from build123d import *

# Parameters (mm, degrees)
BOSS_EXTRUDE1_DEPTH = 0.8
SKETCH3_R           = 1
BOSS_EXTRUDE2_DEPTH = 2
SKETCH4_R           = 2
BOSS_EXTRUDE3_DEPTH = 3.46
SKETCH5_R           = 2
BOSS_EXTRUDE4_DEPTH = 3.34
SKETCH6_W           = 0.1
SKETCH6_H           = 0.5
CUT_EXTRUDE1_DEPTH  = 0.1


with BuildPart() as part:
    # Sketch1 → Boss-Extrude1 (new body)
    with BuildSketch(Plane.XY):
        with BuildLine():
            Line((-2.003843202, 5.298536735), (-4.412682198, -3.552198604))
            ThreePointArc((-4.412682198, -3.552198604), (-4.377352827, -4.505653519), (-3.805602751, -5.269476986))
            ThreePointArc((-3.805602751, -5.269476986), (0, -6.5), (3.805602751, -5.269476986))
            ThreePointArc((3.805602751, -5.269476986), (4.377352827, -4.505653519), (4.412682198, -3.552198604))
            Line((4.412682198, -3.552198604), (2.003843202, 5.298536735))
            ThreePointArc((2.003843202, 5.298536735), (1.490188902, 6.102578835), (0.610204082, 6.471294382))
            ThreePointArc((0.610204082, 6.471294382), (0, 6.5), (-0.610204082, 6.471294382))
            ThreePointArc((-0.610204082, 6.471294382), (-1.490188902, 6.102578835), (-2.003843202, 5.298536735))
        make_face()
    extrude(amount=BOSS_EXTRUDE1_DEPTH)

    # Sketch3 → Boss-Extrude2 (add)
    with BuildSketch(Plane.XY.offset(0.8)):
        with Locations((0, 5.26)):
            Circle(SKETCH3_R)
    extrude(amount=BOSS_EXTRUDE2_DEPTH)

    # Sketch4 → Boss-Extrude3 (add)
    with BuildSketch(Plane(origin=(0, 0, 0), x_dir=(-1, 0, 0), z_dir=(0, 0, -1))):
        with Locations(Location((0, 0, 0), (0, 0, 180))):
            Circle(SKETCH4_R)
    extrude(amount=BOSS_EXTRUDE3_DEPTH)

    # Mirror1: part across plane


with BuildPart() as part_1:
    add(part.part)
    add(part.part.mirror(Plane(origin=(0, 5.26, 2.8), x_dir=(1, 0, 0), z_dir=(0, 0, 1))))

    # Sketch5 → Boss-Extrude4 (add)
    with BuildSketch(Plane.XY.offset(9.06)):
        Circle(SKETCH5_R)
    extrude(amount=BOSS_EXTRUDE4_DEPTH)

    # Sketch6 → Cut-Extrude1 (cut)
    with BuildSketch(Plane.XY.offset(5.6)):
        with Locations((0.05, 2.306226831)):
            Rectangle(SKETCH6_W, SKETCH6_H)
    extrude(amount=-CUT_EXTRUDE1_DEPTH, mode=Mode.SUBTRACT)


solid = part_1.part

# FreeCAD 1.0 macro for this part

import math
import FreeCAD as App
import Part
import Sketcher
from FreeCAD import Vector


def add_polygon(sketch, points):
    """Adds a closed chain of lines whose ends are joined by coincident constraints."""
    first, n = sketch.GeometryCount, len(points)
    for a, b in zip(points, points[1:] + points[:1]):
        sketch.addGeometry(Part.LineSegment(App.Vector(*a, 0), App.Vector(*b, 0)), False)
    for i in range(n):
        sketch.addConstraint(Sketcher.Constraint("Coincident", first + i, 2, first + (i + 1) % n, 1))

doc = App.newDocument("Part")
params = doc.addObject("Spreadsheet::Sheet", "Params")
for row, (alias, value) in enumerate([
    ("sketch1_radius", "1.6 mm"),
    ("sketch1_radius2", "6.5 mm"),
    ("pad1_length", "0.8 mm"),
    ("sketch2_diameter", "2 mm"),
    ("pad2_length", "2 mm"),
    ("sketch3_diameter", "4 mm"),
    ("pad3_length", "3.46 mm"),
    ("sketch4_diameter", "4 mm"),
    ("pad4_length", "3.34 mm"),
    ("sketch5_width", "0.1 mm"),
    ("sketch5_height", "0.5 mm"),
    ("pocket1_length", "0.1 mm"),
], start=1):
    params.set(f"A{row}", alias)
    params.set(f"B{row}", "=" + value)
    params.setAlias(f"B{row}", alias)

body = doc.addObject("PartDesign::Body", "Body")

# Sketch on XY plane
sketch1 = body.newObject("Sketcher::SketchObject", "Sketch")
sketch1.AttachmentSupport = (doc.getObject("XY_Plane"), [""])
sketch1.MapMode = "FlatFace"
sketch1.addGeometry([
    Part.LineSegment(Vector(-2, 5.3, 0), Vector(-4.4, -3.6, 0)),  # 0
    Part.ArcOfCircle(Part.Circle(Vector(-2.9, -4, 0), Vector(0, 0, 1), 1.6), math.radians(165), math.radians(234)),  # 1
    Part.ArcOfCircle(Part.Circle(Vector(0, 0, 0), Vector(0, 0, 1), 6.5), math.radians(-126), math.radians(-54)),  # 2
    Part.ArcOfCircle(Part.Circle(Vector(2.9, -4, 0), Vector(0, 0, 1), 1.6), math.radians(-54), math.radians(15)),  # 3
    Part.LineSegment(Vector(4.4, -3.6, 0), Vector(2, 5.3, 0)),  # 4
    Part.ArcOfCircle(Part.Circle(Vector(0.5, 4.9, 0), Vector(0, 0, 1), 1.6), math.radians(15), math.radians(85)),  # 5
    Part.ArcOfCircle(Part.Circle(Vector(0, 0, 0), Vector(0, 0, 1), 6.5), math.radians(84.61), math.radians(95.39)),  # 6
    Part.ArcOfCircle(Part.Circle(Vector(-0.5, 4.9, 0), Vector(0, 0, 1), 1.6), math.radians(95), math.radians(165)),  # 7
], False)
sketch1.addConstraint([
    Sketcher.Constraint("Tangent", 0, 2, 1, 1),
    Sketcher.Constraint("Tangent", 1, 2, 2, 1),
    Sketcher.Constraint("Tangent", 2, 2, 3, 1),
    Sketcher.Constraint("Tangent", 3, 2, 4, 1),
    Sketcher.Constraint("Tangent", 4, 2, 5, 1),
    Sketcher.Constraint("Tangent", 5, 2, 6, 1),
    Sketcher.Constraint("Tangent", 6, 2, 7, 1),
    Sketcher.Constraint("Tangent", 7, 2, 0, 1),
    Sketcher.Constraint("Coincident", 2, 3, -1, 1),
    Sketcher.Constraint("Coincident", 6, 3, -1, 1),
    Sketcher.Constraint("Equal", 1, 3),
    Sketcher.Constraint("Equal", 3, 5),
    Sketcher.Constraint("Equal", 2, 6),
    Sketcher.Constraint("Equal", 5, 7),
    Sketcher.Constraint("Symmetric", 0, 2, 3, 2, -2),
    Sketcher.Constraint("Radius", 1, 1.6),
    Sketcher.Constraint("Radius", 2, 6.5),
    Sketcher.Constraint("DistanceX", -1, 1, 5, 3, 0.46),
    Sketcher.Constraint("DistanceY", 0, 2, -1, 1, 3.552199),
])
sketch1.setExpression("Constraints[15]", "Params.sketch1_radius")
sketch1.setExpression("Constraints[16]", "Params.sketch1_radius2")
pad1 = body.newObject("PartDesign::Pad", "Pad")
pad1.Profile = sketch1
pad1.setExpression("Length", "Params.pad1_length")

# Sketch on XY plane
sketch2 = body.newObject("Sketcher::SketchObject", "Sketch001")
sketch2.AttachmentSupport = (doc.getObject("XY_Plane"), [""])
sketch2.MapMode = "FlatFace"
sketch2.AttachmentOffset = App.Placement(Vector(0, 0, 0.8), App.Rotation())
sketch2.addGeometry(Part.Circle(Vector(0, 5.3, 0), Vector(0, 0, 1), 1), False)
sketch2.addConstraint([
    Sketcher.Constraint("PointOnObject", 0, 3, -2),
    Sketcher.Constraint("Diameter", 0, 2.0),
    Sketcher.Constraint("DistanceY", -1, 1, 0, 3, 5.26),
])
sketch2.setExpression("Constraints[1]", "Params.sketch2_diameter")
pad2 = body.newObject("PartDesign::Pad", "Pad001")
pad2.Profile = sketch2
pad2.setExpression("Length", "Params.pad2_length")

# Sketch on XY plane
sketch3 = body.newObject("Sketcher::SketchObject", "Sketch002")
sketch3.AttachmentSupport = (doc.getObject("XY_Plane"), [""])
sketch3.MapMode = "FlatFace"
sketch3.addGeometry(Part.Circle(Vector(0, 0, 0), Vector(0, 0, 1), 2), False)
sketch3.addConstraint([
    Sketcher.Constraint("Coincident", 0, 3, -1, 1),
    Sketcher.Constraint("Diameter", 0, 4.0),
])
sketch3.setExpression("Constraints[1]", "Params.sketch3_diameter")
pad3 = body.newObject("PartDesign::Pad", "Pad002")
pad3.Profile = sketch3
pad3.setExpression("Length", "Params.pad3_length")
pad3.Reversed = True
body2 = doc.addObject("PartDesign::Body", "Body001")
doc.recompute()

body2.BaseFeature = body
doc.recompute()

mirroring = doc.addObject("Part::Mirroring", "Mirroring")
mirroring.Source = body
mirroring.Base = Vector(0, 5.26, 2.8)
mirroring.Normal = Vector(0, 0, 1)
body3 = doc.addObject("PartDesign::Body", "Body002")
body3.BaseFeature = mirroring
boolean = body2.newObject("PartDesign::Boolean", "Boolean")
boolean.Type = "Fuse"
boolean.addObjects([body3])
doc.recompute()

# Sketch on XY plane
sketch4 = body2.newObject("Sketcher::SketchObject", "Sketch003")
sketch4.AttachmentSupport = (doc.getObject("XY_Plane001"), [""])
sketch4.MapMode = "FlatFace"
sketch4.AttachmentOffset = App.Placement(Vector(0, 0, 9.06), App.Rotation())
sketch4.addGeometry(Part.Circle(Vector(0, 0, 0), Vector(0, 0, 1), 2), False)
sketch4.addConstraint([
    Sketcher.Constraint("Coincident", 0, 3, -1, 1),
    Sketcher.Constraint("Diameter", 0, 4.0),
])
sketch4.setExpression("Constraints[1]", "Params.sketch4_diameter")
pad4 = body2.newObject("PartDesign::Pad", "Pad003")
pad4.Profile = sketch4
pad4.setExpression("Length", "Params.pad4_length")

# Sketch on XY plane
sketch5 = body2.newObject("Sketcher::SketchObject", "Sketch004")
sketch5.AttachmentSupport = (doc.getObject("XY_Plane001"), [""])
sketch5.MapMode = "FlatFace"
sketch5.AttachmentOffset = App.Placement(Vector(0, 0, 5.6), App.Rotation())
add_polygon(sketch5, [(0, 2.56), (0, 2.06), (0.1, 2.06), (0.1, 2.56)])  # lines 0-3
sketch5.addConstraint([
    Sketcher.Constraint("Vertical", 0),
    Sketcher.Constraint("Horizontal", 1),
    Sketcher.Constraint("Vertical", 2),
    Sketcher.Constraint("Horizontal", 3),
    Sketcher.Constraint("PointOnObject", 0, 2, -2),
    Sketcher.Constraint("DistanceX", 1, 1, 1, 2, 0.1),
    Sketcher.Constraint("DistanceY", 0, 2, 0, 1, 0.5),
    Sketcher.Constraint("DistanceY", -1, 1, 0, 2, 2.056227),
])
sketch5.setExpression("Constraints[9]", "Params.sketch5_width")
sketch5.setExpression("Constraints[10]", "Params.sketch5_height")
pocket1 = body2.newObject("PartDesign::Pocket", "Pocket")
pocket1.Profile = sketch5
pocket1.setExpression("Length", "Params.pocket1_length")
mirroring.Visibility = False

doc.recompute()
